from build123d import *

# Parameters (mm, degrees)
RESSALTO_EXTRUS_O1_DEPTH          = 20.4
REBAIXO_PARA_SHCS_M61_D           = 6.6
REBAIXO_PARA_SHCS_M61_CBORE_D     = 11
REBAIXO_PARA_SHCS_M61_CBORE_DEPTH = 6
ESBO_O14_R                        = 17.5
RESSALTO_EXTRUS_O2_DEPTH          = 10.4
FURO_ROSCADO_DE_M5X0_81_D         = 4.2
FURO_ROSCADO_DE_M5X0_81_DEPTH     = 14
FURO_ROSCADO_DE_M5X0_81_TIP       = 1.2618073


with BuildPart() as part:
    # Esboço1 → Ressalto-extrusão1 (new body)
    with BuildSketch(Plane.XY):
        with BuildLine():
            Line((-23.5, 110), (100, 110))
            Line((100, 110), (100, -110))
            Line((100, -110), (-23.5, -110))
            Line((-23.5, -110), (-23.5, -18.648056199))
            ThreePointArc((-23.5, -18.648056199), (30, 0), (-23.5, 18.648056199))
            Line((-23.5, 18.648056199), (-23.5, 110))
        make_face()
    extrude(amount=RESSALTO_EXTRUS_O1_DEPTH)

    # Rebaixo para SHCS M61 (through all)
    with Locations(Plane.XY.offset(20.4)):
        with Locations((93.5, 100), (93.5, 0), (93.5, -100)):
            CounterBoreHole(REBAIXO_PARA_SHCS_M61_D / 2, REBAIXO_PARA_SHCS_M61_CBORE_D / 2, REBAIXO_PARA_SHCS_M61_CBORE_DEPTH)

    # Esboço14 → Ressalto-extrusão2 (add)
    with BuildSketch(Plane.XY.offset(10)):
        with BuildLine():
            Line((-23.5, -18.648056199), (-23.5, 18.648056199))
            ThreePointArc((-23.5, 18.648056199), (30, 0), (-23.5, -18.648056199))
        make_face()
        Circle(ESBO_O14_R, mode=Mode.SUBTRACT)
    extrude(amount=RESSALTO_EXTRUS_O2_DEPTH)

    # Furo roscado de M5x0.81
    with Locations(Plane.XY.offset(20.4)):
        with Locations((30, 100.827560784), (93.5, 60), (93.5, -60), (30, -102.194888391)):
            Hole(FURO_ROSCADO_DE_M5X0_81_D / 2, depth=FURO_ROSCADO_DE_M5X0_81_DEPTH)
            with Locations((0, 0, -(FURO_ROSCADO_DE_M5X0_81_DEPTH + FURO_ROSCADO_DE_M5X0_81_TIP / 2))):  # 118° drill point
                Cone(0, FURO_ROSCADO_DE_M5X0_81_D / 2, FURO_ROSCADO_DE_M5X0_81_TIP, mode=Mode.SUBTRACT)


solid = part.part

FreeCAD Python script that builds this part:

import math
import FreeCAD as App
import Part
import Sketcher
Q = App.Units.Quantity

doc = App.newDocument("Part")
params = doc.addObject("Spreadsheet::Sheet", "Params")
for row, (alias, value) in enumerate([
    ("sketch1_radius", "30 mm"),
    ("sketch1_height", "220 mm"),
    ("sketch1_width", "123.5 mm"),
    ("pad1_length", "20.4 mm"),
    ("sketch2_diameter", "6.6 mm"),
    ("hole_diameter", "6.6 mm"),
    ("hole_cbore_diameter", "11 mm"),
    ("hole_cbore_depth", "6 mm"),
    ("sketch3_diameter", "35 mm"),
    ("sketch3_radius", "30 mm"),
    ("pad2_length", "10.4 mm"),
    ("sketch4_diameter", "4.2 mm"),
    ("hole2_diameter", "4.2 mm"),
    ("hole2_depth", "14 mm"),
], start=1):
    params.set(f"A{row}", alias)
    params.set(f"B{row}", "=" + value)
    params.setAlias(f"B{row}", alias)

body = doc.addObject("PartDesign::Body", "Body")

# Sketch on XY plane
sketch1 = body.newObject("Sketcher::SketchObject", "Sketch")
sketch1.AttachmentSupport = (doc.getObject("XY_Plane"), [""])
sketch1.MapMode = "FlatFace"
sketch1.addGeometry([
    Part.LineSegment(App.Vector(100, 110, 0), App.Vector(-23.5, 110, 0)),  # 0
    Part.LineSegment(App.Vector(-23.5, 110, 0), App.Vector(-23.5, 18.648056, 0)),  # 1
    Part.ArcOfCircle(Part.Circle(App.Vector(0, 0, 0), App.Vector(0, 0, 1), 30), math.radians(-141.566794), math.radians(141.566794)),  # 2
    Part.LineSegment(App.Vector(-23.5, -18.648056, 0), App.Vector(-23.5, -110, 0)),  # 3
    Part.LineSegment(App.Vector(-23.5, -110, 0), App.Vector(100, -110, 0)),  # 4
    Part.LineSegment(App.Vector(100, -110, 0), App.Vector(100, 110, 0)),  # 5
], False)
sketch1.addConstraint([
    Sketcher.Constraint("Coincident", 0, 2, 1, 1),
    Sketcher.Constraint("Coincident", 1, 2, 2, 2),
    Sketcher.Constraint("Coincident", 2, 1, 3, 1),
    Sketcher.Constraint("Coincident", 3, 2, 4, 1),
    Sketcher.Constraint("Coincident", 4, 2, 5, 1),
    Sketcher.Constraint("Coincident", 5, 2, 0, 1),
    Sketcher.Constraint("Horizontal", 0),
    Sketcher.Constraint("Vertical", 1),
    Sketcher.Constraint("Vertical", 3),
    Sketcher.Constraint("Horizontal", 4),
    Sketcher.Constraint("Vertical", 5),
    Sketcher.Constraint("Coincident", 2, 3, -1, 1),
    Sketcher.Constraint("Symmetric", 0, 2, 3, 2, -1),
    Sketcher.Constraint("Radius", 2, Q("30 mm")),
    Sketcher.Constraint("DistanceY", 5, 1, 5, 2, Q("220 mm")),
    Sketcher.Constraint("DistanceX", 0, 2, 0, 1, Q("123.5 mm")),
    Sketcher.Constraint("DistanceX", -1, 1, 4, 2, Q("100 mm")),
])
sketch1.setExpression("Constraints[13]", "Params.sketch1_radius")
sketch1.setExpression("Constraints[14]", "Params.sketch1_height")
sketch1.setExpression("Constraints[15]", "Params.sketch1_width")
pad1 = body.newObject("PartDesign::Pad", "Pad")
pad1.Profile = sketch1
pad1.setExpression("Length", "Params.pad1_length")

# Sketch on XY plane
sketch2 = body.newObject("Sketcher::SketchObject", "Sketch001")
sketch2.AttachmentSupport = (doc.getObject("XY_Plane"), [""])
sketch2.MapMode = "FlatFace"
sketch2.AttachmentOffset = App.Placement(App.Vector(0, 0, 20.4), App.Rotation())
sketch2.addGeometry([
    Part.Circle(App.Vector(93.5, 100, 0), App.Vector(0, 0, 1), 3.3),
    Part.Circle(App.Vector(93.5, 0, 0), App.Vector(0, 0, 1), 3.3),
    Part.Circle(App.Vector(93.5, -100, 0), App.Vector(0, 0, 1), 3.3),
], False)
sketch2.addConstraint([
    Sketcher.Constraint("Equal", 0, 1),
    Sketcher.Constraint("Equal", 1, 2),
    Sketcher.Constraint("Symmetric", 0, 3, 2, 3, -1),
    Sketcher.Constraint("PointOnObject", 1, 3, -1),
    Sketcher.Constraint("Vertical", 0, 3, 1, 3),
    Sketcher.Constraint("Diameter", 0, Q("6.6 mm")),
    Sketcher.Constraint("DistanceY", -1, 1, 0, 3, Q("100 mm")),
    Sketcher.Constraint("DistanceX", -1, 1, 0, 3, Q("93.5 mm")),
])
sketch2.setExpression("Constraints[5]", "Params.sketch2_diameter")
doc.recompute()
hole = body.newObject("PartDesign::Hole", "Hole")
hole.Profile = sketch2
hole.ThreadType = "None"
hole.setExpression("Diameter", "Params.hole_diameter")
hole.DepthType = "ThroughAll"
hole.HoleCutType = "Counterbore"
hole.setExpression("HoleCutDiameter", "Params.hole_cbore_diameter")
hole.setExpression("HoleCutDepth", "Params.hole_cbore_depth")

# Sketch on XY plane
sketch3 = body.newObject("Sketcher::SketchObject", "Sketch002")
sketch3.AttachmentSupport = (doc.getObject("XY_Plane"), [""])
sketch3.MapMode = "FlatFace"
sketch3.AttachmentOffset = App.Placement(App.Vector(0, 0, 10), App.Rotation())
sketch3.addGeometry([
    Part.LineSegment(App.Vector(-23.5, 18.648056, 0), App.Vector(-23.5, -18.648056, 0)),
    Part.ArcOfCircle(Part.Circle(App.Vector(0, 0, 0), App.Vector(0, 0, 1), 30), math.radians(-141.566794), math.radians(141.566794)),
    Part.Circle(App.Vector(0, 0, 0), App.Vector(0, 0, 1), 17.5),
], False)
sketch3.addConstraint([
    Sketcher.Constraint("Coincident", 0, 1, 1, 2),
    Sketcher.Constraint("Coincident", 1, 1, 0, 2),
    Sketcher.Constraint("Vertical", 0),
    Sketcher.Constraint("Coincident", 1, 3, -1, 1),
    Sketcher.Constraint("Coincident", 2, 3, -1, 1),
    Sketcher.Constraint("Diameter", 2, Q("35 mm")),
    Sketcher.Constraint("Radius", 1, Q("30 mm")),
    Sketcher.Constraint("DistanceX", 0, 1, -1, 1, Q("23.5 mm")),
])
sketch3.setExpression("Constraints[5]", "Params.sketch3_diameter")
sketch3.setExpression("Constraints[6]", "Params.sketch3_radius")
pad2 = body.newObject("PartDesign::Pad", "Pad001")
pad2.Profile = sketch3
pad2.setExpression("Length", "Params.pad2_length")

# Sketch on XY plane
sketch4 = body.newObject("Sketcher::SketchObject", "Sketch003")
sketch4.AttachmentSupport = (doc.getObject("XY_Plane"), [""])
sketch4.MapMode = "FlatFace"
sketch4.AttachmentOffset = App.Placement(App.Vector(0, 0, 20.4), App.Rotation())
sketch4.addGeometry([
    Part.Circle(App.Vector(30, 100.827561, 0), App.Vector(0, 0, 1), 2.1),
    Part.Circle(App.Vector(93.5, 60, 0), App.Vector(0, 0, 1), 2.1),
    Part.Circle(App.Vector(93.5, -60, 0), App.Vector(0, 0, 1), 2.1),
    Part.Circle(App.Vector(30, -102.194888, 0), App.Vector(0, 0, 1), 2.1),
], False)
sketch4.addConstraint([
    Sketcher.Constraint("Equal", 0, 1),
    Sketcher.Constraint("Equal", 1, 2),
    Sketcher.Constraint("Equal", 2, 3),
    Sketcher.Constraint("Symmetric", 1, 3, 2, 3, -1),
    Sketcher.Constraint("Vertical", 0, 3, 3, 3),
    Sketcher.Constraint("Diameter", 0, Q("4.2 mm")),
    Sketcher.Constraint("DistanceX", -1, 1, 0, 3, Q("30 mm")),
    Sketcher.Constraint("DistanceY", -1, 1, 1, 3, Q("60 mm")),
    Sketcher.Constraint("DistanceX", -1, 1, 1, 3, Q("93.5 mm")),
    Sketcher.Constraint("DistanceY", -1, 1, 0, 3, Q("100.827561 mm")),
    Sketcher.Constraint("DistanceY", 3, 3, -1, 1, Q("102.194888 mm")),
])
sketch4.setExpression("Constraints[5]", "Params.sketch4_diameter")
doc.recompute()
hole2 = body.newObject("PartDesign::Hole", "Hole001")
hole2.Profile = sketch4
hole2.ThreadType = "None"
hole2.setExpression("Diameter", "Params.hole2_diameter")
hole2.DepthType = "Dimension"
hole2.setExpression("Depth", "Params.hole2_depth")
hole2.DrillPoint = "Angled"
hole2.DrillPointAngle = 118

doc.recompute()
